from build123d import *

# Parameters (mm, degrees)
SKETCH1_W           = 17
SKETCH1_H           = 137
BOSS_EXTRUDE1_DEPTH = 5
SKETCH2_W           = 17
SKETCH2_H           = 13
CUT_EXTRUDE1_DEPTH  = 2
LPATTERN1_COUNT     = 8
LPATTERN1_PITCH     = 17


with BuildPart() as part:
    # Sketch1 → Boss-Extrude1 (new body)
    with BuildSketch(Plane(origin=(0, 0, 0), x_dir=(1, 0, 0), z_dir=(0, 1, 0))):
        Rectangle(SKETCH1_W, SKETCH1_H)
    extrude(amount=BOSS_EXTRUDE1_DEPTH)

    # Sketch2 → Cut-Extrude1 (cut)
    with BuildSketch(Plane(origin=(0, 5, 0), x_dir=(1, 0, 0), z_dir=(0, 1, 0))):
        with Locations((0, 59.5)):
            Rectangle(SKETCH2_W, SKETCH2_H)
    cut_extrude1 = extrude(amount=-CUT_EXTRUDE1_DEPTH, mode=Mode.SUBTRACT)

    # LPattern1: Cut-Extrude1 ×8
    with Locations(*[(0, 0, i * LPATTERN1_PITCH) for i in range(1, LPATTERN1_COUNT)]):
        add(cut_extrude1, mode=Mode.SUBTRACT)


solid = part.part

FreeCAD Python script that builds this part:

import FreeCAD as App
import Part
import Sketcher

V = App.Vector

doc = App.newDocument("Part")
body = doc.addObject("PartDesign::Body", "Body")

# Sketch on XZ plane
sketch1 = doc.addObject("Sketcher::SketchObject", "Sketch")
body.addObject(sketch1)
sketch1.AttachmentSupport = (doc.XZ_Plane, [""])
sketch1.MapMode = "FlatFace"
sketch1.addGeometry([
    Part.LineSegment(V(-8.5, -68.5, 0), V(-8.5, 68.5, 0)),
    Part.LineSegment(V(-8.5, 68.5, 0), V(8.5, 68.5, 0)),
    Part.LineSegment(V(8.5, 68.5, 0), V(8.5, -68.5, 0)),
    Part.LineSegment(V(8.5, -68.5, 0), V(-8.5, -68.5, 0)),
], False)
sketch1.addConstraint([
    Sketcher.Constraint("Coincident", 0, 2, 1, 1),
    Sketcher.Constraint("Coincident", 1, 2, 2, 1),
    Sketcher.Constraint("Coincident", 2, 2, 3, 1),
    Sketcher.Constraint("Coincident", 3, 2, 0, 1),
    Sketcher.Constraint("Vertical", 0),
    Sketcher.Constraint("Horizontal", 1),
    Sketcher.Constraint("Vertical", 2),
    Sketcher.Constraint("Horizontal", 3),
    Sketcher.Constraint("Symmetric", 0, 2, 2, 2, -1, 1),
    Sketcher.Constraint("DistanceX", 1, 1, 1, 2, 17.0),
    Sketcher.Constraint("DistanceY", 0, 1, 0, 2, 137.0),
])
pad1 = doc.addObject("PartDesign::Pad", "Pad")
body.addObject(pad1)
pad1.Profile = sketch1
pad1.Length = 5
pad1.Reversed = True

# Sketch on XZ plane
sketch2 = doc.addObject("Sketcher::SketchObject", "Sketch001")
body.addObject(sketch2)
sketch2.AttachmentSupport = (doc.XZ_Plane, [""])
sketch2.MapMode = "FlatFace"
sketch2.AttachmentOffset = App.Placement(V(0, 0, -5), App.Rotation())
sketch2.addGeometry([
    Part.LineSegment(V(-8.5, -66, 0), V(-8.5, -53, 0)),
    Part.LineSegment(V(-8.5, -53, 0), V(8.5, -53, 0)),
    Part.LineSegment(V(8.5, -53, 0), V(8.5, -66, 0)),
    Part.LineSegment(V(8.5, -66, 0), V(-8.5, -66, 0)),
], False)
sketch2.addConstraint([
    Sketcher.Constraint("Coincident", 0, 2, 1, 1),
    Sketcher.Constraint("Coincident", 1, 2, 2, 1),
    Sketcher.Constraint("Coincident", 2, 2, 3, 1),
    Sketcher.Constraint("Coincident", 3, 2, 0, 1),
    Sketcher.Constraint("Vertical", 0),
    Sketcher.Constraint("Horizontal", 1),
    Sketcher.Constraint("Vertical", 2),
    Sketcher.Constraint("Horizontal", 3),
    Sketcher.Constraint("DistanceX", 1, 1, 1, 2, 17.0),
    Sketcher.Constraint("DistanceY", 0, 1, 0, 2, 13.0),
    Sketcher.Constraint("DistanceY", 0, 2, -1, 1, 53.0),
    Sketcher.Constraint("DistanceX", 0, 2, -1, 1, 8.5),
])
pocket1 = doc.addObject("PartDesign::Pocket", "Pocket")
body.addObject(pocket1)
pocket1.Profile = sketch2
pocket1.Length = 2
pocket1.Reversed = True
doc.recompute()

linearpattern = doc.addObject("PartDesign::LinearPattern", "LinearPattern")
body.addObject(linearpattern)
linearpattern.Originals = [pocket1]
linearpattern.Direction = (doc.Z_Axis, [""])
linearpattern.Mode = "offset"
linearpattern.Offset = 17
linearpattern.Occurrences = 8
body.Tip = linearpattern

doc.recompute()
